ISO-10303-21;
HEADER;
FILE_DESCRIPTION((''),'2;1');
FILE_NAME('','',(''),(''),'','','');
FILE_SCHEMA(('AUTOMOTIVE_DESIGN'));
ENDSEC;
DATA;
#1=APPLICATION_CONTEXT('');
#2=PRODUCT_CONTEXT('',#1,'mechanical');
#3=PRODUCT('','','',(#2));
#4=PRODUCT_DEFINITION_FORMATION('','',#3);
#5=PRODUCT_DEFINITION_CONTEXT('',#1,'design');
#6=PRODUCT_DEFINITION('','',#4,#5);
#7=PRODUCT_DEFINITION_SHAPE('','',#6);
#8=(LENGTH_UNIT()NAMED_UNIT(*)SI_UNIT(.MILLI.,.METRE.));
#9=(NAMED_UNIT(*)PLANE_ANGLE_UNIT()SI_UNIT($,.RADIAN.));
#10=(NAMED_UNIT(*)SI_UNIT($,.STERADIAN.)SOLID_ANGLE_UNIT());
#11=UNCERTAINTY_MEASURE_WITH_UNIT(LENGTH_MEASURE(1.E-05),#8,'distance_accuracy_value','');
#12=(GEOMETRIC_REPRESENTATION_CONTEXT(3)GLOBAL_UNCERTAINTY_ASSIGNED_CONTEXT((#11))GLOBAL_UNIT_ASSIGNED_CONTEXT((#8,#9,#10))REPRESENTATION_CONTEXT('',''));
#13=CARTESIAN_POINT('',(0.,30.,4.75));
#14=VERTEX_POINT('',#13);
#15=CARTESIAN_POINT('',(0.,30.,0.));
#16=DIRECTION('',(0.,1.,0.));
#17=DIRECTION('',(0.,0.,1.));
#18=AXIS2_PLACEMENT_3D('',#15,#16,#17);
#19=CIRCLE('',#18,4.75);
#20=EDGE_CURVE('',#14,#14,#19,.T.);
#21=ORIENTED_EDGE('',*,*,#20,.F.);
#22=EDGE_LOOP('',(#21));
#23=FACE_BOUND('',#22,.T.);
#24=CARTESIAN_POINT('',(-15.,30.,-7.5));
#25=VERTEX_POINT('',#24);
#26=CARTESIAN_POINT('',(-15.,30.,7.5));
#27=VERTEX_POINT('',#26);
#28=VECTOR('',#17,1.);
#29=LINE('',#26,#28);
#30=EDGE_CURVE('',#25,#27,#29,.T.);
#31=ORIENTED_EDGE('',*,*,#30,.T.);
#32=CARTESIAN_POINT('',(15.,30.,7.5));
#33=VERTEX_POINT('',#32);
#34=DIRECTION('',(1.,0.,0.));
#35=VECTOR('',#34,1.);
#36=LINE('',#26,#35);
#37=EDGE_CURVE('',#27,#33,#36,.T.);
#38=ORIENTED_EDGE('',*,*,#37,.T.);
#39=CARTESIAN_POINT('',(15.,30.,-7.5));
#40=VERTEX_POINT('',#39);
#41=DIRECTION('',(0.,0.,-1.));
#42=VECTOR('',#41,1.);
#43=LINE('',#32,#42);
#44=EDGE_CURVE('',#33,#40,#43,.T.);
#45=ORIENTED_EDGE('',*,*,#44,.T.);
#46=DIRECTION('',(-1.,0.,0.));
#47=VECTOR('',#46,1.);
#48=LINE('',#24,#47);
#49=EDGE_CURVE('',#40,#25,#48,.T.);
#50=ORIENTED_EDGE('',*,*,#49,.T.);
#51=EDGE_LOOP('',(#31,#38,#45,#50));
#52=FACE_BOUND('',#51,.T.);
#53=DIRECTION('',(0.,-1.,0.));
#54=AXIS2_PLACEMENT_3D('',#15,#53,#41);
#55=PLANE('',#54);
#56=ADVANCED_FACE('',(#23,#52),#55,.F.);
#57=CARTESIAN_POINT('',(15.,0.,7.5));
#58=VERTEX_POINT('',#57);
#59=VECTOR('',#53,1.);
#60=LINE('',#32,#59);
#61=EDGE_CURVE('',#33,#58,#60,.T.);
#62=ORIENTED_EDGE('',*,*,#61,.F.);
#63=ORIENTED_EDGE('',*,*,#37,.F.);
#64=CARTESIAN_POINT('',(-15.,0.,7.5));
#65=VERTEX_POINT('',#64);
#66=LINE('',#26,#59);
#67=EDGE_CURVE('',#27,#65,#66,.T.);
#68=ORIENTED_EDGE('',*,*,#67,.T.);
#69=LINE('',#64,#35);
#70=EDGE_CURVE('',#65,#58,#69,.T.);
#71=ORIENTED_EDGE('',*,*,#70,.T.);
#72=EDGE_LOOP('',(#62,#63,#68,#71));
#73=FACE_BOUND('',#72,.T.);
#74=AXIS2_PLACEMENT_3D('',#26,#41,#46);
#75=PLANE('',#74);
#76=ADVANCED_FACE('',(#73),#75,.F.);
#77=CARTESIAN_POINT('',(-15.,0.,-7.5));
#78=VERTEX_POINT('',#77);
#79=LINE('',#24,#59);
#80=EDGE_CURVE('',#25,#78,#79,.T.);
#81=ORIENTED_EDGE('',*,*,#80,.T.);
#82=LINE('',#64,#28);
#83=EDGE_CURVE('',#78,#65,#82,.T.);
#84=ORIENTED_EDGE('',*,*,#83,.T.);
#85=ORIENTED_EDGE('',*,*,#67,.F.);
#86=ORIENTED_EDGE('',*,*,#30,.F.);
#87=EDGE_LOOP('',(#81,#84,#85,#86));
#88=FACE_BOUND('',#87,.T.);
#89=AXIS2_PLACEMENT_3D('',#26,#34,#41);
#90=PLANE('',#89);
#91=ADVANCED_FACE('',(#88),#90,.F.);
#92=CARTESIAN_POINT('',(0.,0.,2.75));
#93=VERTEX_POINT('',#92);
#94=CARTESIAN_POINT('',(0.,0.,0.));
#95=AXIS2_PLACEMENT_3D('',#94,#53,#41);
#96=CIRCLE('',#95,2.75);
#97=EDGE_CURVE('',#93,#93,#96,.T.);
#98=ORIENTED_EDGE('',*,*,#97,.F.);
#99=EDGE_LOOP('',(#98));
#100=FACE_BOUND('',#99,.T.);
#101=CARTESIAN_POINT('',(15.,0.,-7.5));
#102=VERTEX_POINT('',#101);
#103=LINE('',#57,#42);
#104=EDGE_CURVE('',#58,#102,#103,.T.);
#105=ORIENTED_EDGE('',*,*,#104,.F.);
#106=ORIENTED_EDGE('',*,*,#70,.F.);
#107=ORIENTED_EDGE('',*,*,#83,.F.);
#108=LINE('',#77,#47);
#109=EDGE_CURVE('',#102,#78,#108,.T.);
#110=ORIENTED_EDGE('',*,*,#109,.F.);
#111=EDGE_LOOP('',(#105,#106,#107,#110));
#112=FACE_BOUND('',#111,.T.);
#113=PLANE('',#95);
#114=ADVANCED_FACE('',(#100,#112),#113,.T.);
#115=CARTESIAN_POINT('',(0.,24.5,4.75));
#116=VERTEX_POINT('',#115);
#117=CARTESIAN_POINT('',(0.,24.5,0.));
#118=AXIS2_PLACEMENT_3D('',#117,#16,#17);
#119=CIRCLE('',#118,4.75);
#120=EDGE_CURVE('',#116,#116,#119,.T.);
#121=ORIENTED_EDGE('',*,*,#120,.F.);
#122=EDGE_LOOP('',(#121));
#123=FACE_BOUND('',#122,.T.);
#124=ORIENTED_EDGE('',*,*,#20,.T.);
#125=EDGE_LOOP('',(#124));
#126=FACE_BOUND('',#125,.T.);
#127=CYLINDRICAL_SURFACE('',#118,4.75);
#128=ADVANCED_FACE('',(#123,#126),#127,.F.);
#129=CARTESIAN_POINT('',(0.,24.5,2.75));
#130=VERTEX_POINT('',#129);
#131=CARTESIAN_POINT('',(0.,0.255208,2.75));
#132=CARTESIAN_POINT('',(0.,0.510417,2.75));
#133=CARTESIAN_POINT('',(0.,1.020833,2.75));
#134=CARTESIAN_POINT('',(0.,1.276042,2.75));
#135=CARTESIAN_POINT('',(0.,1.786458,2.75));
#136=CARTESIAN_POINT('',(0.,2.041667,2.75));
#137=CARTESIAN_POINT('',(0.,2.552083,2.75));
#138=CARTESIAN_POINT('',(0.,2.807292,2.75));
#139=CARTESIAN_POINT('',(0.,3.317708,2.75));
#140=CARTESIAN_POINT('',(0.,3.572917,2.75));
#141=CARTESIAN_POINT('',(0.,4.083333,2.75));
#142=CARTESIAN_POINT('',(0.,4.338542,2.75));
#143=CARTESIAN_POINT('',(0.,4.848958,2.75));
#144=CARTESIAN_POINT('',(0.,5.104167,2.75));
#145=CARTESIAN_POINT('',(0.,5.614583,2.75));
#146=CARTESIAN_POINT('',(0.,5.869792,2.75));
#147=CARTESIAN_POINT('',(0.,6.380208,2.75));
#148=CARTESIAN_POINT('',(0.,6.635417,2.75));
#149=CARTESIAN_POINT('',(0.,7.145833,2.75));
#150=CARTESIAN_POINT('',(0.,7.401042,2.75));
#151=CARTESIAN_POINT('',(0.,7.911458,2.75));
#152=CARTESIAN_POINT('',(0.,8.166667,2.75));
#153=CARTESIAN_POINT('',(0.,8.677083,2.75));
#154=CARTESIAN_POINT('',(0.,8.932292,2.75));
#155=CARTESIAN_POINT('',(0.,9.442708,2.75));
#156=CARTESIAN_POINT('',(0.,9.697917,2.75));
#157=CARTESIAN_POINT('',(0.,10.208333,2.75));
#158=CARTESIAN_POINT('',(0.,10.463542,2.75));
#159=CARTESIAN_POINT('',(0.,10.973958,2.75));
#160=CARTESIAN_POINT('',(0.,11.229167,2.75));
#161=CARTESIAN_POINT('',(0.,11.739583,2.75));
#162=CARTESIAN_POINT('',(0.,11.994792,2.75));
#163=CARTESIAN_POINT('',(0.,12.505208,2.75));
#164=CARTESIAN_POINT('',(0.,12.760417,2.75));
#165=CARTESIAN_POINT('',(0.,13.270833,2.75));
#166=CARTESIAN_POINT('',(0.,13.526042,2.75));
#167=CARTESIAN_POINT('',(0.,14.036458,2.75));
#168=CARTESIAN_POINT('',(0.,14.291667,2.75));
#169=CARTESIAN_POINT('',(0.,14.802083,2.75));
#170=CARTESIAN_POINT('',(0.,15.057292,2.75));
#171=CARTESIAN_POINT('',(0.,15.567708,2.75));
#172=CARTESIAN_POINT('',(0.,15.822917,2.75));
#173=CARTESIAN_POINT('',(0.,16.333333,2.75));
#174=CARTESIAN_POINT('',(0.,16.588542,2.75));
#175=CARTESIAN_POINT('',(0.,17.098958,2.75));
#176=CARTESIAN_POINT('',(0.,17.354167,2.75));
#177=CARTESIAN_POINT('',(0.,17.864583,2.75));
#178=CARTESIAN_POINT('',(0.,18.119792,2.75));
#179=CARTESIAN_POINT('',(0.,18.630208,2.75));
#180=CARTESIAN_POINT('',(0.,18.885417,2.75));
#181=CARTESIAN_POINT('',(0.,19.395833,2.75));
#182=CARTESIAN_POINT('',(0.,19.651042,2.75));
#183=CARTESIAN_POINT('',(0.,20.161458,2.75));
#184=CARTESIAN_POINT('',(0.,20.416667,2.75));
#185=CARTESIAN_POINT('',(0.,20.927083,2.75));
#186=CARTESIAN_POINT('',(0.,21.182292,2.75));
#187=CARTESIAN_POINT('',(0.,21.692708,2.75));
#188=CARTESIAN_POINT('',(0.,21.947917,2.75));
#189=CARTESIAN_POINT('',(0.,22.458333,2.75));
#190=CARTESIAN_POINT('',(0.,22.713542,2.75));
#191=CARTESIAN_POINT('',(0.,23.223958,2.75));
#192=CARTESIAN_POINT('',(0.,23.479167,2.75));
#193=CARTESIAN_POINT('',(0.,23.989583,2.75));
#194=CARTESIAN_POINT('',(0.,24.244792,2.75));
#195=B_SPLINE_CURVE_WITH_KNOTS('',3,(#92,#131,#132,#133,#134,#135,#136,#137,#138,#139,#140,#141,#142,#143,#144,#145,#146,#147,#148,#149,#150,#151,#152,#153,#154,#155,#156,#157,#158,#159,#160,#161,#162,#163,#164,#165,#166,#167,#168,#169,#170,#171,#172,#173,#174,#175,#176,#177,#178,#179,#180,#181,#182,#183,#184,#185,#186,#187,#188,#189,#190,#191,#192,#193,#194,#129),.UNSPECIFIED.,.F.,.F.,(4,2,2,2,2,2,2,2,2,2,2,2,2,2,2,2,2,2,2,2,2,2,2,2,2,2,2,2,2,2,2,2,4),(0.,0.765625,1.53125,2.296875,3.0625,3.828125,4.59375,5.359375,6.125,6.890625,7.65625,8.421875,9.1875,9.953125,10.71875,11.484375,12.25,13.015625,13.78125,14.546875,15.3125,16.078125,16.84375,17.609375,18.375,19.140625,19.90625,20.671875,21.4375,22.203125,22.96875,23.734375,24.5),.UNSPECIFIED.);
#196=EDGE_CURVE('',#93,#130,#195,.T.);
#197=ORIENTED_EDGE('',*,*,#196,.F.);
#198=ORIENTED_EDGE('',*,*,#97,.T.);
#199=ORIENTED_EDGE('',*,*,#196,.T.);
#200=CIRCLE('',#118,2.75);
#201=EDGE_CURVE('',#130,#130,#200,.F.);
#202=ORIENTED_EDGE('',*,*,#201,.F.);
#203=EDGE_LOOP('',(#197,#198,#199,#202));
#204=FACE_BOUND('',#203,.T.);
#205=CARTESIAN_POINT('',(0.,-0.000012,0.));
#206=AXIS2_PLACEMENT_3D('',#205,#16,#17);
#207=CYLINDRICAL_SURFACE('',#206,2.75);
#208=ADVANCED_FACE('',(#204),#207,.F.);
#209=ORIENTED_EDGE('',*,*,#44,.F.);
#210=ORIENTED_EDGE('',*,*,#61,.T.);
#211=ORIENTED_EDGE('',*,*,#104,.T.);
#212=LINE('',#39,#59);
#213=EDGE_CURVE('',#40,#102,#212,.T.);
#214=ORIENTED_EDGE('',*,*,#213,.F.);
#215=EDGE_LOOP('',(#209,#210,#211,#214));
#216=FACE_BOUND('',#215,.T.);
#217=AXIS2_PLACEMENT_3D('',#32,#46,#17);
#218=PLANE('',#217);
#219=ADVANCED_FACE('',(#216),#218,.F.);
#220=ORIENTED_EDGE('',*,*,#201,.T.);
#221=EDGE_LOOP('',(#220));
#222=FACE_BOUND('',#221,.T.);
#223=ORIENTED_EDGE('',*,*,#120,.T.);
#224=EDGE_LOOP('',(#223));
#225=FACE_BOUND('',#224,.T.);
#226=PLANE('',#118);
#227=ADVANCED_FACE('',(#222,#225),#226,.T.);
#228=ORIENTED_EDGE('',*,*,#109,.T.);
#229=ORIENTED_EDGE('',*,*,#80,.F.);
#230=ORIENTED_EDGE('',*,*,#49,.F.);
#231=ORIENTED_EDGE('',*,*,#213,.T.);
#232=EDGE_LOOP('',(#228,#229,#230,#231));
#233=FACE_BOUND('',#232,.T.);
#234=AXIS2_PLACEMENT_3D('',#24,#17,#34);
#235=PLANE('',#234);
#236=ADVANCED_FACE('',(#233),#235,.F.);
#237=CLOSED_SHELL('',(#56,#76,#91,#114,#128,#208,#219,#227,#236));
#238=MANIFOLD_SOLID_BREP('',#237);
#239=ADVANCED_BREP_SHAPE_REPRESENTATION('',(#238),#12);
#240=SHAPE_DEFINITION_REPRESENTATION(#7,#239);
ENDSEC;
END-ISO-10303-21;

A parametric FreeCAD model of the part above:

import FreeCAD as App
import Part
import Sketcher
from FreeCAD import Vector
Q = App.Units.Quantity

doc = App.newDocument("Part")
params = doc.addObject("Spreadsheet::Sheet", "Params")
for row, (alias, value) in enumerate([
    ("sketch1_width", "30 mm"),
    ("sketch1_height", "15 mm"),
    ("pad1_length", "30 mm"),
    ("sketch2_diameter", "5.5 mm"),
    ("sketch3_diameter", "9.5 mm"),
    ("pocket2_length", "5.5 mm"),
], start=1):
    params.set(f"A{row}", alias)
    params.set(f"B{row}", "=" + value)
    params.setAlias(f"B{row}", alias)

body = doc.addObject("PartDesign::Body", "Body")

# Sketch on XZ plane
sketch1 = doc.addObject("Sketcher::SketchObject", "Sketch")
body.addObject(sketch1)
sketch1.AttachmentSupport = (doc.XZ_Plane, [""])
sketch1.MapMode = "FlatFace"
sketch1.addGeometry([
    Part.LineSegment(Vector(-15, -8, 0), Vector(-15, 8, 0)),
    Part.LineSegment(Vector(-15, 8, 0), Vector(15, 8, 0)),
    Part.LineSegment(Vector(15, 8, 0), Vector(15, -8, 0)),
    Part.LineSegment(Vector(15, -8, 0), Vector(-15, -8, 0)),
], False)
sketch1.addConstraint([
    Sketcher.Constraint("Coincident", 0, 2, 1, 1),
    Sketcher.Constraint("Coincident", 1, 2, 2, 1),
    Sketcher.Constraint("Coincident", 2, 2, 3, 1),
    Sketcher.Constraint("Coincident", 3, 2, 0, 1),
    Sketcher.Constraint("Vertical", 0),
    Sketcher.Constraint("Horizontal", 1),
    Sketcher.Constraint("Vertical", 2),
    Sketcher.Constraint("Horizontal", 3),
    Sketcher.Constraint("Symmetric", 0, 2, 2, 2, -1, 1),
    Sketcher.Constraint("DistanceX", 1, 1, 1, 2, Q("30 mm")),
    Sketcher.Constraint("DistanceY", 0, 1, 0, 2, Q("15 mm")),
])
sketch1.setExpression("Constraints[9]", "Params.sketch1_width")
sketch1.setExpression("Constraints[10]", "Params.sketch1_height")
pad1 = doc.addObject("PartDesign::Pad", "Pad")
body.addObject(pad1)
pad1.Profile = sketch1
pad1.setExpression("Length", "Params.pad1_length")
pad1.Reversed = True

# Sketch on XZ plane
sketch2 = doc.addObject("Sketcher::SketchObject", "Sketch001")
body.addObject(sketch2)
sketch2.AttachmentSupport = (doc.XZ_Plane, [""])
sketch2.MapMode = "FlatFace"
sketch2.addGeometry(Part.Circle(Vector(0, 0, 0), Vector(0, 0, 1), 2.8), False)
sketch2.addConstraint([
    Sketcher.Constraint("Coincident", 0, 3, -1, 1),
    Sketcher.Constraint("Diameter", 0, Q("5.5 mm")),
])
sketch2.setExpression("Constraints[1]", "Params.sketch2_diameter")
pocket1 = doc.addObject("PartDesign::Pocket", "Pocket")
body.addObject(pocket1)
pocket1.Profile = sketch2
pocket1.Type = "ThroughAll"
pocket1.Midplane = True

# Sketch on XZ plane
sketch3 = doc.addObject("Sketcher::SketchObject", "Sketch002")
body.addObject(sketch3)
sketch3.AttachmentSupport = (doc.XZ_Plane, [""])
sketch3.MapMode = "FlatFace"
sketch3.AttachmentOffset = App.Placement(Vector(0, 0, -30), App.Rotation())
sketch3.addGeometry(Part.Circle(Vector(0, 0, 0), Vector(0, 0, 1), 4.8), False)
sketch3.addConstraint([
    Sketcher.Constraint("Coincident", 0, 3, -1, 1),
    Sketcher.Constraint("Diameter", 0, Q("9.5 mm")),
])
sketch3.setExpression("Constraints[1]", "Params.sketch3_diameter")
pocket2 = doc.addObject("PartDesign::Pocket", "Pocket001")
body.addObject(pocket2)
pocket2.Profile = sketch3
pocket2.setExpression("Length", "Params.pocket2_length")
pocket2.Reversed = True

doc.recompute()
